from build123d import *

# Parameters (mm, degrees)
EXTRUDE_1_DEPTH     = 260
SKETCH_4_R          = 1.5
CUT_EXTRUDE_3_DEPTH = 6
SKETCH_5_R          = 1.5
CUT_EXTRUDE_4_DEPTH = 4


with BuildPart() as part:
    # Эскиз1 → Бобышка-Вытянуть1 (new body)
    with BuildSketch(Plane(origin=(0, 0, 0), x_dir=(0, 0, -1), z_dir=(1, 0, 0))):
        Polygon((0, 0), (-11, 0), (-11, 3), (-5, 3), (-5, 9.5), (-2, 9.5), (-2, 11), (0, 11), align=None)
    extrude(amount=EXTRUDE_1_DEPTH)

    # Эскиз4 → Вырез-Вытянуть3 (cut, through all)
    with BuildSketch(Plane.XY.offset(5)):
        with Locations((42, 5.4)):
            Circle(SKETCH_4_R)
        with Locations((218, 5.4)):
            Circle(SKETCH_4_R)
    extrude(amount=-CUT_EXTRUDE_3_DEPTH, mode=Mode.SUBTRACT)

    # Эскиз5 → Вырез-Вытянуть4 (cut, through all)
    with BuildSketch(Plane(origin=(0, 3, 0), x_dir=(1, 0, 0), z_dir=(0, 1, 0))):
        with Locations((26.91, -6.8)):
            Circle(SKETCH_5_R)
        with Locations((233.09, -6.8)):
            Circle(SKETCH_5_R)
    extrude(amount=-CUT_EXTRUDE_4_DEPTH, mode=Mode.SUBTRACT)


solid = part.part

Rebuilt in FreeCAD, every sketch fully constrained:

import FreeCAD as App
import Part
import Sketcher
from FreeCAD import Vector
Q = App.Units.Quantity

doc = App.newDocument("Part")
body = doc.addObject("PartDesign::Body", "Body")

# Sketch on YZ plane
sketch1 = body.newObject("Sketcher::SketchObject", "Sketch")
sketch1.AttachmentSupport = (doc.getObject("YZ_Plane"), [""])
sketch1.MapMode = "FlatFace"
sketch1.addGeometry(Part.LineSegment(Vector(0, 11, 0), Vector(0, 0, 0)), False)
sketch1.addGeometry(Part.LineSegment(Vector(0, 0, 0), Vector(11, 0, 0)), False)
sketch1.addGeometry(Part.LineSegment(Vector(11, 0, 0), Vector(11, 2, 0)), False)
sketch1.addGeometry(Part.LineSegment(Vector(11, 2, 0), Vector(9.5, 2, 0)), False)
sketch1.addGeometry(Part.LineSegment(Vector(9.5, 2, 0), Vector(9.5, 5, 0)), False)
sketch1.addGeometry(Part.LineSegment(Vector(9.5, 5, 0), Vector(3, 5, 0)), False)
sketch1.addGeometry(Part.LineSegment(Vector(3, 5, 0), Vector(3, 11, 0)), False)
sketch1.addGeometry(Part.LineSegment(Vector(3, 11, 0), Vector(0, 11, 0)), False)
sketch1.addConstraint(Sketcher.Constraint("Coincident", 0, 2, 1, 1))
sketch1.addConstraint(Sketcher.Constraint("Coincident", 1, 2, 2, 1))
sketch1.addConstraint(Sketcher.Constraint("Coincident", 2, 2, 3, 1))
sketch1.addConstraint(Sketcher.Constraint("Coincident", 3, 2, 4, 1))
sketch1.addConstraint(Sketcher.Constraint("Coincident", 4, 2, 5, 1))
sketch1.addConstraint(Sketcher.Constraint("Coincident", 5, 2, 6, 1))
sketch1.addConstraint(Sketcher.Constraint("Coincident", 6, 2, 7, 1))
sketch1.addConstraint(Sketcher.Constraint("Coincident", 7, 2, 0, 1))
sketch1.addConstraint(Sketcher.Constraint("Vertical", 0))
sketch1.addConstraint(Sketcher.Constraint("Horizontal", 1))
sketch1.addConstraint(Sketcher.Constraint("Vertical", 2))
sketch1.addConstraint(Sketcher.Constraint("Horizontal", 3))
sketch1.addConstraint(Sketcher.Constraint("Vertical", 4))
sketch1.addConstraint(Sketcher.Constraint("Horizontal", 5))
sketch1.addConstraint(Sketcher.Constraint("Vertical", 6))
sketch1.addConstraint(Sketcher.Constraint("Horizontal", 7))
sketch1.addConstraint(Sketcher.Constraint("Coincident", 0, 2, -1, 1))
sketch1.addConstraint(Sketcher.Constraint("Equal", 1, 0))
sketch1.addConstraint(Sketcher.Constraint("Equal", 7, 4))
sketch1.addConstraint(Sketcher.Constraint("DistanceX", 1, 1, 1, 2, Q("11 mm")))
sketch1.addConstraint(Sketcher.Constraint("DistanceX", 7, 2, 7, 1, Q("3 mm")))
sketch1.addConstraint(Sketcher.Constraint("DistanceY", 2, 1, 2, 2, Q("2 mm")))
sketch1.addConstraint(Sketcher.Constraint("DistanceX", 3, 2, 3, 1, Q("1.5 mm")))
pad1 = body.newObject("PartDesign::Pad", "Pad")
pad1.Profile = sketch1
pad1.Length = 260

# Sketch on XY plane
sketch2 = body.newObject("Sketcher::SketchObject", "Sketch001")
sketch2.AttachmentSupport = (doc.getObject("XY_Plane"), [""])
sketch2.MapMode = "FlatFace"
sketch2.AttachmentOffset = App.Placement(Vector(0, 0, 5), App.Rotation())
sketch2.addGeometry(Part.Circle(Vector(42, 5.4, 0), Vector(0, 0, 1), 1.5), False)
sketch2.addGeometry(Part.Circle(Vector(218, 5.4, 0), Vector(0, 0, 1), 1.5), False)
sketch2.addConstraint(Sketcher.Constraint("Equal", 0, 1))
sketch2.addConstraint(Sketcher.Constraint("Horizontal", 0, 3, 1, 3))
sketch2.addConstraint(Sketcher.Constraint("Diameter", 0, Q("3 mm")))
sketch2.addConstraint(Sketcher.Constraint("DistanceX", -1, 1, 0, 3, Q("42 mm")))
sketch2.addConstraint(Sketcher.Constraint("DistanceX", -1, 1, 1, 3, Q("218 mm")))
sketch2.addConstraint(Sketcher.Constraint("DistanceY", -1, 1, 0, 3, Q("5.4 mm")))
pocket1 = body.newObject("PartDesign::Pocket", "Pocket")
pocket1.Profile = sketch2
pocket1.Type = "ThroughAll"

# Sketch on XZ plane
sketch3 = body.newObject("Sketcher::SketchObject", "Sketch002")
sketch3.AttachmentSupport = (doc.getObject("XZ_Plane"), [""])
sketch3.MapMode = "FlatFace"
sketch3.AttachmentOffset = App.Placement(Vector(0, 0, -3), App.Rotation())
sketch3.addGeometry(Part.Circle(Vector(26.9, 6.8, 0), Vector(0, 0, 1), 1.5), False)
sketch3.addGeometry(Part.Circle(Vector(233.1, 6.8, 0), Vector(0, 0, 1), 1.5), False)
sketch3.addConstraint(Sketcher.Constraint("Equal", 0, 1))
sketch3.addConstraint(Sketcher.Constraint("Horizontal", 0, 3, 1, 3))
sketch3.addConstraint(Sketcher.Constraint("Diameter", 0, Q("3 mm")))
sketch3.addConstraint(Sketcher.Constraint("DistanceY", -1, 1, 0, 3, Q("6.8 mm")))
sketch3.addConstraint(Sketcher.Constraint("DistanceX", -1, 1, 0, 3, Q("26.91 mm")))
sketch3.addConstraint(Sketcher.Constraint("DistanceX", -1, 1, 1, 3, Q("233.09 mm")))
pocket2 = body.newObject("PartDesign::Pocket", "Pocket001")
pocket2.Profile = sketch3
pocket2.Type = "ThroughAll"
pocket2.Reversed = True

doc.recompute()
